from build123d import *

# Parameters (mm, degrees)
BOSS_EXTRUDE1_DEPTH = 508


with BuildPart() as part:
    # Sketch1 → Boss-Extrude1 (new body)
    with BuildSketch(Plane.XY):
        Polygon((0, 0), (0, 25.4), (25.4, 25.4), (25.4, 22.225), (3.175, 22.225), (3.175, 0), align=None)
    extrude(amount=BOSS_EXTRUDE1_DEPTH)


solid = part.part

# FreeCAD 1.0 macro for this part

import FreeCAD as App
import Part
import Sketcher

V = App.Vector
Q = App.Units.Quantity


def add_polygon(sketch, points):
    """Adds a closed chain of lines whose ends are joined by coincident constraints."""
    first, n = sketch.GeometryCount, len(points)
    for a, b in zip(points, points[1:] + points[:1]):
        sketch.addGeometry(Part.LineSegment(App.Vector(*a, 0), App.Vector(*b, 0)), False)
    for i in range(n):
        sketch.addConstraint(Sketcher.Constraint("Coincident", first + i, 2, first + (i + 1) % n, 1))

doc = App.newDocument("Part")
body = doc.addObject("PartDesign::Body", "Body")

# Sketch on XY plane
sketch1 = body.newObject("Sketcher::SketchObject", "Sketch")
sketch1.AttachmentSupport = (doc.getObject("XY_Plane"), [""])
sketch1.MapMode = "FlatFace"
add_polygon(sketch1, [(0, 25.4), (0, 0), (3.2, 0), (3.2, 22.2), (25.4, 22.2), (25.4, 25.4)])  # lines 0-5
sketch1.addConstraint(Sketcher.Constraint("Vertical", 0))
sketch1.addConstraint(Sketcher.Constraint("Horizontal", 1))
sketch1.addConstraint(Sketcher.Constraint("Vertical", 2))
sketch1.addConstraint(Sketcher.Constraint("Horizontal", 3))
sketch1.addConstraint(Sketcher.Constraint("Vertical", 4))
sketch1.addConstraint(Sketcher.Constraint("Horizontal", 5))
sketch1.addConstraint(Sketcher.Constraint("Coincident", 0, 2, -1, 1))
sketch1.addConstraint(Sketcher.Constraint("Equal", 5, 0))
sketch1.addConstraint(Sketcher.Constraint("Equal", 3, 2))
sketch1.addConstraint(Sketcher.Constraint("DistanceX", 5, 2, 5, 1, Q("1 in")))
sketch1.addConstraint(Sketcher.Constraint("DistanceX", 1, 1, 1, 2, Q("0.125 in")))
pad1 = body.newObject("PartDesign::Pad", "Pad")
pad1.Profile = sketch1
pad1.Length = Q("20 in")

doc.recompute()
